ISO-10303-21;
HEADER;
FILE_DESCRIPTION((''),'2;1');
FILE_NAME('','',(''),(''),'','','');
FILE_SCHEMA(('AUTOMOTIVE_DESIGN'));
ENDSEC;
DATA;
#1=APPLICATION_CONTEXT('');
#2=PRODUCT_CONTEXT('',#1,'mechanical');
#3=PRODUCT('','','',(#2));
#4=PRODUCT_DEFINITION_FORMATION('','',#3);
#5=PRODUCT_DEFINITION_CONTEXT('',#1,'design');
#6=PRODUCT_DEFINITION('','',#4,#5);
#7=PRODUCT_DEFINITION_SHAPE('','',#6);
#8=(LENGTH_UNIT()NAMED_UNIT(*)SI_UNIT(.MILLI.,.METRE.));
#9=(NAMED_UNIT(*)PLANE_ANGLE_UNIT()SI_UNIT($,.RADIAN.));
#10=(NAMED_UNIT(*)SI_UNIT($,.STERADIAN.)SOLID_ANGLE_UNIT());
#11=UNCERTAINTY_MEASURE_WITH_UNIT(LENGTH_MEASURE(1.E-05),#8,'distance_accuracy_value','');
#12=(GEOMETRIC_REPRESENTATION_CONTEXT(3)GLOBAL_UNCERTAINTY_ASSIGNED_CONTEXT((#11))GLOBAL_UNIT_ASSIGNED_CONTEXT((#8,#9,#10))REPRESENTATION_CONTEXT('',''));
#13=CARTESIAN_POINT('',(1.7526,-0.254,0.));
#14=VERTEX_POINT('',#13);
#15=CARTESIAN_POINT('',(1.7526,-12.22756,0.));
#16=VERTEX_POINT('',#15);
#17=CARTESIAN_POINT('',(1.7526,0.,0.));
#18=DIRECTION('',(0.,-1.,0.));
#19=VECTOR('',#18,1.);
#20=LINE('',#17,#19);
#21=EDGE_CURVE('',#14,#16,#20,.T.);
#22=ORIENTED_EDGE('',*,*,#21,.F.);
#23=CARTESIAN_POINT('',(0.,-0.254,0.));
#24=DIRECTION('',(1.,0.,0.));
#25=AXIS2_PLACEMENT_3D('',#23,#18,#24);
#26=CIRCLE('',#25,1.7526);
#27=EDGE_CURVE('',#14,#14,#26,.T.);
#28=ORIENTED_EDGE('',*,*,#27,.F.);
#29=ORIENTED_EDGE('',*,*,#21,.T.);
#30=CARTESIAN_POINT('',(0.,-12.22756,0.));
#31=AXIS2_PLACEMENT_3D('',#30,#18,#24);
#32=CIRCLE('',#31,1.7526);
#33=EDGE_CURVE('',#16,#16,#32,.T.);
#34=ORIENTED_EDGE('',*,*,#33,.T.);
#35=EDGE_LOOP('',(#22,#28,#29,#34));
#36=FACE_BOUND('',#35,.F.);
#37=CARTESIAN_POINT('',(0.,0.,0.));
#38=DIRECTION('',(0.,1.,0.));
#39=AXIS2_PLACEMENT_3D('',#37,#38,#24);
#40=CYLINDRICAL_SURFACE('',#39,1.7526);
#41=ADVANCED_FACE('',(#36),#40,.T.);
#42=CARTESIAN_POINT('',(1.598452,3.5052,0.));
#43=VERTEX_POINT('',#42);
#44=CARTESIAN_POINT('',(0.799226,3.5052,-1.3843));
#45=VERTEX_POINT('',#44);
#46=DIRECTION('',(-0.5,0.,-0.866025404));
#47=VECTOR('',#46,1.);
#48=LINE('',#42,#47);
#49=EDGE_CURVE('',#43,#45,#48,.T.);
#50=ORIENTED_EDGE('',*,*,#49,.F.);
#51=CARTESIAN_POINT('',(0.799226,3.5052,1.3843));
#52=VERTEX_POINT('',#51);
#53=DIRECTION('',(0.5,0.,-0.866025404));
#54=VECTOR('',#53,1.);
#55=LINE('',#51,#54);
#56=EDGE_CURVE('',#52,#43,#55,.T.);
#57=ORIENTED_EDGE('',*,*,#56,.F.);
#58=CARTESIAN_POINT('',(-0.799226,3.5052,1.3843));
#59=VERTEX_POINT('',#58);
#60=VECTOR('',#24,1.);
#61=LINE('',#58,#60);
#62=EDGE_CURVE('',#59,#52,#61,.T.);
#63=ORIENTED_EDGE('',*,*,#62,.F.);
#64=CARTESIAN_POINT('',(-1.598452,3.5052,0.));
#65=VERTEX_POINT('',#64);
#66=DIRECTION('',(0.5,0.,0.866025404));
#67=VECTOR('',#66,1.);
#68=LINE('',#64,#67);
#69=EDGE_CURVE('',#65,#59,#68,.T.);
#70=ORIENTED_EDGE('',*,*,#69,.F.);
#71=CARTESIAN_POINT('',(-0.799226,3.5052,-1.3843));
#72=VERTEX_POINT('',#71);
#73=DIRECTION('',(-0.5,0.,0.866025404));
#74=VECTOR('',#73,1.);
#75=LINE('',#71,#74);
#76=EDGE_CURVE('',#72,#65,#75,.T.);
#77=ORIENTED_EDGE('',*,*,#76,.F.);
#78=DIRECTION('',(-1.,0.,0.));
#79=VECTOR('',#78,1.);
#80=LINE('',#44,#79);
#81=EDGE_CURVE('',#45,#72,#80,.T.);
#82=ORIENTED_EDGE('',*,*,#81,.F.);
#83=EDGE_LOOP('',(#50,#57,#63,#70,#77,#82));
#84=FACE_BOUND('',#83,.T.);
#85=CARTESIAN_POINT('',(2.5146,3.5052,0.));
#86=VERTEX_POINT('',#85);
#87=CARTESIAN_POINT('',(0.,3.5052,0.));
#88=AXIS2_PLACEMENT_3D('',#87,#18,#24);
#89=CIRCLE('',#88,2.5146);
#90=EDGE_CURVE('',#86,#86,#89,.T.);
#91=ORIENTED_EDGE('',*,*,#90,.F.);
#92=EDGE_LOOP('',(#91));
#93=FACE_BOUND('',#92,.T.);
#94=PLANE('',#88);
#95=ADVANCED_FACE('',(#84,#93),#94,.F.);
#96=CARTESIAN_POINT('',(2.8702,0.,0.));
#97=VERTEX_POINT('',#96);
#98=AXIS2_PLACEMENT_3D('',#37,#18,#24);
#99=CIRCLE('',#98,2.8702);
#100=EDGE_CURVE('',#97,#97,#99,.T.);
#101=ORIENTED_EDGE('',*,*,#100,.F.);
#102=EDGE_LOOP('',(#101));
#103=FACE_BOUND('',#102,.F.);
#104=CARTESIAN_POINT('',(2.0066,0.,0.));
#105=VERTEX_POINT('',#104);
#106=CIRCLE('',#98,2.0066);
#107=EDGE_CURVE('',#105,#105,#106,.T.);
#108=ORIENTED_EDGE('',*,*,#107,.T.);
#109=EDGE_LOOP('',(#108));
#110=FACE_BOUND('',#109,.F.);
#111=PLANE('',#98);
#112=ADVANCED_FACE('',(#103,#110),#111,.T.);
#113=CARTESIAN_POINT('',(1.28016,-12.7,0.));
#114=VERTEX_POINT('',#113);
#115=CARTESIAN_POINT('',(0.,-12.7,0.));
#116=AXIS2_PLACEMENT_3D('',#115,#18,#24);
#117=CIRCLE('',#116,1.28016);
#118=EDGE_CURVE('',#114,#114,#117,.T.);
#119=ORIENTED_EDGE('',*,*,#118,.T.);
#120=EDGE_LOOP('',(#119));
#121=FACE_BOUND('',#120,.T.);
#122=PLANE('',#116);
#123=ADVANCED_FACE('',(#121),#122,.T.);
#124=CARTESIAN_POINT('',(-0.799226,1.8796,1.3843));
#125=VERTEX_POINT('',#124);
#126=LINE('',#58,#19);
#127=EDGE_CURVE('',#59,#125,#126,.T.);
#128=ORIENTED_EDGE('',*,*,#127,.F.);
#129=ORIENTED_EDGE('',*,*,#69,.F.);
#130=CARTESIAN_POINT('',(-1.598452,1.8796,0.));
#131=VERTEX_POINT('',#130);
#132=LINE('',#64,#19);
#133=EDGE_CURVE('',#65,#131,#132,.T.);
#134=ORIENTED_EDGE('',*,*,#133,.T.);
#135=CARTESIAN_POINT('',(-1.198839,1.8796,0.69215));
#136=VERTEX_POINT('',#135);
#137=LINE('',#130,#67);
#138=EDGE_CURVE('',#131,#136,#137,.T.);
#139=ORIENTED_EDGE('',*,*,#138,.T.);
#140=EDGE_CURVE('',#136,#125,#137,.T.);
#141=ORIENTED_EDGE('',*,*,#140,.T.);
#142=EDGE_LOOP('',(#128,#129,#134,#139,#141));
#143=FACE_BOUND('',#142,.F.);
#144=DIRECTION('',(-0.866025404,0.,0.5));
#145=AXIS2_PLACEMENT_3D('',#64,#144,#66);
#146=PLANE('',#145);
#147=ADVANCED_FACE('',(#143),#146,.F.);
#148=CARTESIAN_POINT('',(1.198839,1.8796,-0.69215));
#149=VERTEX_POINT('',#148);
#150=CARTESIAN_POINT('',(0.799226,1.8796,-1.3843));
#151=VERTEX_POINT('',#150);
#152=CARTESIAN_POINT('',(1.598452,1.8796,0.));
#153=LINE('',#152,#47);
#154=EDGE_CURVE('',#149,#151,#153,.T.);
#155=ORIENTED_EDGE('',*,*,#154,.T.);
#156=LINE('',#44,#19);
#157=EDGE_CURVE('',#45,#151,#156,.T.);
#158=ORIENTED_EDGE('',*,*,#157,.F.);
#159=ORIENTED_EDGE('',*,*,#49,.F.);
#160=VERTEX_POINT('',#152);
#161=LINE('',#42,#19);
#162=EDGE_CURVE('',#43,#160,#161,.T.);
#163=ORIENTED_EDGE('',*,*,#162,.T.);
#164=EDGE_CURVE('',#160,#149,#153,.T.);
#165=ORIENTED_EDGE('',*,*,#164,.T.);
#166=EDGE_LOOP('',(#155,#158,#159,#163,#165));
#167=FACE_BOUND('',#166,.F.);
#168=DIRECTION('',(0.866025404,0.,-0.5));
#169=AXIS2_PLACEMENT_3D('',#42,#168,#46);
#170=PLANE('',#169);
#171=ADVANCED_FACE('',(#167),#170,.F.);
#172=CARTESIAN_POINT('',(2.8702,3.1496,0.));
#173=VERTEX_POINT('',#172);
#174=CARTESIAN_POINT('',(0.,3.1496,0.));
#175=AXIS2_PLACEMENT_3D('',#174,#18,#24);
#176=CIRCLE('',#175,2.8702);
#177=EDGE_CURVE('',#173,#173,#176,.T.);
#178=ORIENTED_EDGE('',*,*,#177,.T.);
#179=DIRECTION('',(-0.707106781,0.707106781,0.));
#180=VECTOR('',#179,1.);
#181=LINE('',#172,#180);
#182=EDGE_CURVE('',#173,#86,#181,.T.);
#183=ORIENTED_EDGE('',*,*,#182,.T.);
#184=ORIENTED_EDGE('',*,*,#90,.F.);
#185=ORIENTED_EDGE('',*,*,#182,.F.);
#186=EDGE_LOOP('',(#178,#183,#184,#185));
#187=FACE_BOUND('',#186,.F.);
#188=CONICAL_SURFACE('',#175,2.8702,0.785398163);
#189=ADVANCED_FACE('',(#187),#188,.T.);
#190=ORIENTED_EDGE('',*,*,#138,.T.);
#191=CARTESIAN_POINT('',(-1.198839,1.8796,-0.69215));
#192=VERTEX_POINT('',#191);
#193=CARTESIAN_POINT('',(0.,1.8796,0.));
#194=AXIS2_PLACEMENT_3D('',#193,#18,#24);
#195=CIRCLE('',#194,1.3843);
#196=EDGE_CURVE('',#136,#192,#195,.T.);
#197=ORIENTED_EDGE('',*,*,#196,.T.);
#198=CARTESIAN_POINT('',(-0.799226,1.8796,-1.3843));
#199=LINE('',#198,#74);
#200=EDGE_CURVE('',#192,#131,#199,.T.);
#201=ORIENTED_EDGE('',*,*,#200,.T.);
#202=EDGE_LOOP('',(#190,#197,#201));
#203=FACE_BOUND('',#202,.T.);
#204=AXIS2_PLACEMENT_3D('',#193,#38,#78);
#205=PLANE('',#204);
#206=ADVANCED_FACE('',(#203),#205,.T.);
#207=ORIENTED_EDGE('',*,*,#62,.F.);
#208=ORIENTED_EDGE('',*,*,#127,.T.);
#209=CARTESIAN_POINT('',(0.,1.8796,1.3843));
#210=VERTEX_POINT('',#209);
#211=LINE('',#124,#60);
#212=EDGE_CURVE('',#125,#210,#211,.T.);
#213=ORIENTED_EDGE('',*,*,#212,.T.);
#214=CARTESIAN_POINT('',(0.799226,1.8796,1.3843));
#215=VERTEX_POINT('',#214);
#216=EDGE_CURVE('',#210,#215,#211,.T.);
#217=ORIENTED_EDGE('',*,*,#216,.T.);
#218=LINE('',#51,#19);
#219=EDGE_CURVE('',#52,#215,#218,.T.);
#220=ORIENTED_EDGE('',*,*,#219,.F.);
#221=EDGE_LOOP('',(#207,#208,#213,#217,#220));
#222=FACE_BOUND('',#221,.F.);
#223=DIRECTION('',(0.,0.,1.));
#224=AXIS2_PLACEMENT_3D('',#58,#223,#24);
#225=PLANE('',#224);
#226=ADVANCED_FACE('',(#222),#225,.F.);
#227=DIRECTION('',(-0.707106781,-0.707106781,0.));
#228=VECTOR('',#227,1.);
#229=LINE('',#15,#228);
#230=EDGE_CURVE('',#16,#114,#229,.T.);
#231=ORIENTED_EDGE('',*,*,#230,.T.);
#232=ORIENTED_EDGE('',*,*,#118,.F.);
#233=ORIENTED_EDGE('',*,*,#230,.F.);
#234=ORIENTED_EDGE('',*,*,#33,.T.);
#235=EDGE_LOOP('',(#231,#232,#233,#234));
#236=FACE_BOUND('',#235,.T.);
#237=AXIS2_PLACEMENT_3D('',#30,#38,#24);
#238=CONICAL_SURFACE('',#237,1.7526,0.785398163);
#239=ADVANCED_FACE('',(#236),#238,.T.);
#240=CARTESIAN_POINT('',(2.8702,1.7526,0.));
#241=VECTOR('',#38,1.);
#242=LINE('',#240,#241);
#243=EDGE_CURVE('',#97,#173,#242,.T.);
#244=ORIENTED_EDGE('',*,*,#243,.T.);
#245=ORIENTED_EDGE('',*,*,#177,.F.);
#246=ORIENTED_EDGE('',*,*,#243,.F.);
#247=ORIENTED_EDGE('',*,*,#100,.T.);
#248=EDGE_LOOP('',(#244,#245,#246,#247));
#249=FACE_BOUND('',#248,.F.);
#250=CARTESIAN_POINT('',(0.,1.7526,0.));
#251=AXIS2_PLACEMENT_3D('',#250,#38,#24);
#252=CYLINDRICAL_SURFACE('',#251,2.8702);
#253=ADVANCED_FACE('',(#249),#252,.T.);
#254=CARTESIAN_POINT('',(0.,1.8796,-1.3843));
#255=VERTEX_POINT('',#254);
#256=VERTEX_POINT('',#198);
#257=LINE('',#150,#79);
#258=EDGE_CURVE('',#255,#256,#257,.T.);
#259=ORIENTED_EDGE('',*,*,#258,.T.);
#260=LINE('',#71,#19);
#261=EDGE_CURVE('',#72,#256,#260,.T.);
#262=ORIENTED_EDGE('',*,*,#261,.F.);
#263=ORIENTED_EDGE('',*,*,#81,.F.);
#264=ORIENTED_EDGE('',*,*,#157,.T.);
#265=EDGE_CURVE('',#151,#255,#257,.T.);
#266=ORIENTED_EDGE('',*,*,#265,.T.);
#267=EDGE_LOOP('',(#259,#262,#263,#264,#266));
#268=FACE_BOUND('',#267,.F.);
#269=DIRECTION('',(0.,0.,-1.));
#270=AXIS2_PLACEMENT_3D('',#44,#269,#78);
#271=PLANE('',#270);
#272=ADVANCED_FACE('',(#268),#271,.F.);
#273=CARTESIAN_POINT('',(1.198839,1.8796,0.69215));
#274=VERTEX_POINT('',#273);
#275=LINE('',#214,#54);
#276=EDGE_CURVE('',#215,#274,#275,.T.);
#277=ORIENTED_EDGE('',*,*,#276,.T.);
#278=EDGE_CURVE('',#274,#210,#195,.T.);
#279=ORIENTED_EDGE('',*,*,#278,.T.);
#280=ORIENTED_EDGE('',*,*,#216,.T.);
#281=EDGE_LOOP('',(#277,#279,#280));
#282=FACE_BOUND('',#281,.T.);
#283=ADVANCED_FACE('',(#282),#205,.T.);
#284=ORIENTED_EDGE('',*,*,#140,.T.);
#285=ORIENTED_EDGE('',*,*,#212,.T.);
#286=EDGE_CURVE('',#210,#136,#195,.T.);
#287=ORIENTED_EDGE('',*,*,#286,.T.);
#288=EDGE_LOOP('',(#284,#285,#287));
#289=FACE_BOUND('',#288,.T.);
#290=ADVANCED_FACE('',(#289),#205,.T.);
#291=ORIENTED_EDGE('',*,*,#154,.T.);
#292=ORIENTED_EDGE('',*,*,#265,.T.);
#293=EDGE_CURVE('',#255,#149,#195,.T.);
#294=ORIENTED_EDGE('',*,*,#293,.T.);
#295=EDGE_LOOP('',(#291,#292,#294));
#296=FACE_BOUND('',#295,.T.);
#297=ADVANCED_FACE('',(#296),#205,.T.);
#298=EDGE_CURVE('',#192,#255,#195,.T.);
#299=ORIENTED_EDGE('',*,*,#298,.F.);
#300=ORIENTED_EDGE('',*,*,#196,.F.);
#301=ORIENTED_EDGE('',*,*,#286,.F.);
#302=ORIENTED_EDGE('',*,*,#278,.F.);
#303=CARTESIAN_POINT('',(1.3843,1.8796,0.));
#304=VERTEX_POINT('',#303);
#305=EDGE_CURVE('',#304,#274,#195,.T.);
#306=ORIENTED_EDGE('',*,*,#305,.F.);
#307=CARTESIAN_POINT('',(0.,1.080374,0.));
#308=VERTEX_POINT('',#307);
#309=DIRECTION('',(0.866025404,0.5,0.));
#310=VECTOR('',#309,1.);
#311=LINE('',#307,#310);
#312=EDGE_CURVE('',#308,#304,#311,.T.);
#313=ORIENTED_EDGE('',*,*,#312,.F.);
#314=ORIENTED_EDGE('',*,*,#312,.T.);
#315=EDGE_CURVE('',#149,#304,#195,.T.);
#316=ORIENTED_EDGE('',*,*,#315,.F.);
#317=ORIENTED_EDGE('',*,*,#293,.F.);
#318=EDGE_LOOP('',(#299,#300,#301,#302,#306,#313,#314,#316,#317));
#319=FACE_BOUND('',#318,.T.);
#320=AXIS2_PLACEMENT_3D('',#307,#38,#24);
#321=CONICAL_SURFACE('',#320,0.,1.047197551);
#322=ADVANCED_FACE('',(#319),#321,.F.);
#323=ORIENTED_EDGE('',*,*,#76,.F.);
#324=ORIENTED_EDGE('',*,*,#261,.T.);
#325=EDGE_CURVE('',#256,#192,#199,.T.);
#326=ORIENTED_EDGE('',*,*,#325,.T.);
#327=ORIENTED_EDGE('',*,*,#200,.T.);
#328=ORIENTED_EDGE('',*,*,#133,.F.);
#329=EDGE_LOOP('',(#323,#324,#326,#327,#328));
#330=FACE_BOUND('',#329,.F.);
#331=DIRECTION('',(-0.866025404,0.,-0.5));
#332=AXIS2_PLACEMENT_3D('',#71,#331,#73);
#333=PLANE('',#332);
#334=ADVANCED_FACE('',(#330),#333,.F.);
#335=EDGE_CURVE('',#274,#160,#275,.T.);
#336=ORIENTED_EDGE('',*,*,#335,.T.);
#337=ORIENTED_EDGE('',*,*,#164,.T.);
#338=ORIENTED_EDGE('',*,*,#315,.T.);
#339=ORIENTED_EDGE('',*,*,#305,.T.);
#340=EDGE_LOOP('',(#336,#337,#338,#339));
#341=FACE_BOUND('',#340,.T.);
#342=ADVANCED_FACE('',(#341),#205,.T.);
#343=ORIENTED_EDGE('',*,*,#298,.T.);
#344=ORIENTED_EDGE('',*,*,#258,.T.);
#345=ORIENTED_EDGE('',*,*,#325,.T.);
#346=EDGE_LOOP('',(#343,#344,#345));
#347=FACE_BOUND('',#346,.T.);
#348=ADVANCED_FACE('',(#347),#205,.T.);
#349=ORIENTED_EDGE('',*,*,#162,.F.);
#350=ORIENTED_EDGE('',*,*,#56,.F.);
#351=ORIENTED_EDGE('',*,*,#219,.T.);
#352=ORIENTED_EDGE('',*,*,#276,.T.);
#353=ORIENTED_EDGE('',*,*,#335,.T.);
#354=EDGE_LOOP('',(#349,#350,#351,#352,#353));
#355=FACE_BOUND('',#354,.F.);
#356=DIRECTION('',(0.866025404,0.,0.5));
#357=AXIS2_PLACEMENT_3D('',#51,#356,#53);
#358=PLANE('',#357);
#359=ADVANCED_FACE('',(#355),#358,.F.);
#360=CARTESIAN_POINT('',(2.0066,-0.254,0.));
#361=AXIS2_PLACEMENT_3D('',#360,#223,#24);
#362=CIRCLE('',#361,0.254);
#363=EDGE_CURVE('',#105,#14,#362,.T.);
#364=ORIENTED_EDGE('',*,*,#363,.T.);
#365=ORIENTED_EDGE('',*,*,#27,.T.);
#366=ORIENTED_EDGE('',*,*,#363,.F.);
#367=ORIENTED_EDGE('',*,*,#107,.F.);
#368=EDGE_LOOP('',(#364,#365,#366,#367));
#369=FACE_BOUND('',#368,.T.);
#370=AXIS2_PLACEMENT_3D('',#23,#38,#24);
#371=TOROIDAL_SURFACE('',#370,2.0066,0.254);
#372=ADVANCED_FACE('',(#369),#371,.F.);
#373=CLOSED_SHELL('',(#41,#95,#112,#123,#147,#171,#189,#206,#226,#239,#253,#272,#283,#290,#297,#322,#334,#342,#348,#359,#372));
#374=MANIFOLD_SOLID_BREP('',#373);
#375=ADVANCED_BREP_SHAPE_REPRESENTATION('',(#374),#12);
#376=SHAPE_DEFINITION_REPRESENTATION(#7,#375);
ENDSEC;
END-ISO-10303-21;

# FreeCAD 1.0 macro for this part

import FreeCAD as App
import Part
import Sketcher

V = App.Vector
Q = App.Units.Quantity


def edges_at(feature, points):
    """Names of the edges that pass closest to the given points."""
    edges = feature.Shape.Edges
    near = lambda p: min(range(len(edges)), key=lambda i: edges[i].distToShape(Part.Vertex(*p))[0])
    return sorted({f"Edge{near(p) + 1}" for p in points})


def add_polygon(sketch, points):
    """Adds a closed chain of lines whose ends are joined by coincident constraints."""
    first, n = sketch.GeometryCount, len(points)
    for a, b in zip(points, points[1:] + points[:1]):
        sketch.addGeometry(Part.LineSegment(App.Vector(*a, 0), App.Vector(*b, 0)), False)
    for i in range(n):
        sketch.addConstraint(Sketcher.Constraint("Coincident", first + i, 2, first + (i + 1) % n, 1))

doc = App.newDocument("Part")
params = doc.addObject("Spreadsheet::Sheet", "Params")
for row, (alias, value) in enumerate([
    ("sketch1_width", "0.113 in"),
    ("sketch1_height", "0.138 in"),
    ("revolution_angle", "360 deg"),
    ("sketch2_diameter", "0.138 in"),
    ("pad1_length", "0.5 in"),
    ("pocket1_length", "0.064 in"),
    ("groove_angle", "360 deg"),
    ("chamfer_size", "0.0186 in"),
    ("chamfer2_size", "0.014 in"),
    ("fillet_radius", "0.01 in"),
], start=1):
    params.set(f"A{row}", alias)
    params.set(f"B{row}", "=" + value)
    params.setAlias(f"B{row}", alias)

body = doc.addObject("PartDesign::Body", "Body")

# Sketch on XY plane
sketch1 = body.newObject("Sketcher::SketchObject", "Sketch")
sketch1.AttachmentSupport = (doc.getObject("XY_Plane"), [""])
sketch1.MapMode = "FlatFace"
add_polygon(sketch1, [(0, 3.5), (0, 0), (2.9, 0), (2.9, 3.5)])  # lines 0-3
sketch1.addConstraint([
    Sketcher.Constraint("Vertical", 0),
    Sketcher.Constraint("Horizontal", 1),
    Sketcher.Constraint("Vertical", 2),
    Sketcher.Constraint("Horizontal", 3),
    Sketcher.Constraint("Coincident", 0, 2, -1, 1),
    Sketcher.Constraint("DistanceX", 1, 1, 1, 2, Q("0.113 in")),
    Sketcher.Constraint("DistanceY", 0, 2, 0, 1, Q("0.138 in")),
])
sketch1.setExpression("Constraints[9]", "Params.sketch1_width")
sketch1.setExpression("Constraints[10]", "Params.sketch1_height")
revolution = body.newObject("PartDesign::Revolution", "Revolution")
revolution.Profile = sketch1
revolution.ReferenceAxis = (sketch1, ["V_Axis"])
revolution.setExpression("Angle", "Params.revolution_angle")

# Sketch on XZ plane
sketch2 = body.newObject("Sketcher::SketchObject", "Sketch001")
sketch2.AttachmentSupport = (doc.getObject("XZ_Plane"), [""])
sketch2.MapMode = "FlatFace"
sketch2.addGeometry(Part.Circle(V(0, 0, 0), V(0, 0, 1), 1.8), False)
sketch2.addConstraint([
    Sketcher.Constraint("Coincident", 0, 3, -1, 1),
    Sketcher.Constraint("Diameter", 0, Q("0.138 in")),
])
sketch2.setExpression("Constraints[1]", "Params.sketch2_diameter")
pad1 = body.newObject("PartDesign::Pad", "Pad")
pad1.Profile = sketch2
pad1.setExpression("Length", "Params.pad1_length")

# Sketch on XZ plane
sketch3 = body.newObject("Sketcher::SketchObject", "Sketch002")
sketch3.AttachmentSupport = (doc.getObject("XZ_Plane"), [""])
sketch3.MapMode = "FlatFace"
sketch3.AttachmentOffset = App.Placement(V(0, 0, -0.138 * 25.4), App.Rotation())
add_polygon(sketch3, [(0.8, 1.4), (1.6, 0), (0.8, -1.4), (-0.8, -1.4), (-1.6, 0), (-0.8, 1.4)])  # lines 0-5
sketch3.addConstraint([
    Sketcher.Constraint("Horizontal", 2),
    Sketcher.Constraint("Horizontal", 5),
    Sketcher.Constraint("Symmetric", 0, 2, 3, 2, -1, 1),
    Sketcher.Constraint("Symmetric", 1, 2, 4, 2, -1, 1),
    Sketcher.Constraint("PointOnObject", 0, 2, -1),
    Sketcher.Constraint("Parallel", 0, 3),
    Sketcher.Constraint("Vertical", 2, 2, 4, 2),
    Sketcher.Constraint("Angle", 0, Q("-60 deg")),
    Sketcher.Constraint("DistanceY", 2, 2, 4, 2, Q("0.109 in")),
    Sketcher.Constraint("DistanceX", 2, 2, 2, 1, Q("1.598452 mm")),
])
pocket1 = body.newObject("PartDesign::Pocket", "Pocket")
pocket1.Profile = sketch3
pocket1.setExpression("Length", "Params.pocket1_length")
pocket1.Reversed = True

# Sketch on XY plane
sketch4 = body.newObject("Sketcher::SketchObject", "Sketch003")
sketch4.AttachmentSupport = (doc.getObject("XY_Plane"), [""])
sketch4.MapMode = "FlatFace"
add_polygon(sketch4, [(1.4, 1.9), (0, 1.9), (0, 1.1)])  # lines 0-2
sketch4.addConstraint([
    Sketcher.Constraint("Horizontal", 0),
    Sketcher.Constraint("Vertical", 1),
    Sketcher.Constraint("PointOnObject", 0, 2, -2),
    Sketcher.Constraint("Angle", 2, Q("30 deg")),
    Sketcher.Constraint("DistanceX", 0, 2, 0, 1, Q("0.0545 in")),
    Sketcher.Constraint("DistanceY", -1, 1, 0, 2, Q("0.074 in")),
])
groove = body.newObject("PartDesign::Groove", "Groove")
groove.Profile = sketch4
groove.ReferenceAxis = (sketch4, ["V_Axis"])
groove.setExpression("Angle", "Params.groove_angle")
doc.recompute()

chamfer = body.newObject("PartDesign::Chamfer", "Chamfer")
chamfer.Base = (groove, edges_at(groove, [(-1.753, -12.7, 0)]))
chamfer.setExpression("Size", "Params.chamfer_size")
doc.recompute()

chamfer2 = body.newObject("PartDesign::Chamfer", "Chamfer001")
chamfer2.Base = (chamfer, edges_at(chamfer, [(-2.87, 3.505, 0)]))
chamfer2.setExpression("Size", "Params.chamfer2_size")
doc.recompute()

fillet = body.newObject("PartDesign::Fillet", "Fillet")
fillet.Base = (chamfer2, edges_at(chamfer2, [(-1.753, 0, 0)]))
fillet.setExpression("Radius", "Params.fillet_radius")

doc.recompute()
